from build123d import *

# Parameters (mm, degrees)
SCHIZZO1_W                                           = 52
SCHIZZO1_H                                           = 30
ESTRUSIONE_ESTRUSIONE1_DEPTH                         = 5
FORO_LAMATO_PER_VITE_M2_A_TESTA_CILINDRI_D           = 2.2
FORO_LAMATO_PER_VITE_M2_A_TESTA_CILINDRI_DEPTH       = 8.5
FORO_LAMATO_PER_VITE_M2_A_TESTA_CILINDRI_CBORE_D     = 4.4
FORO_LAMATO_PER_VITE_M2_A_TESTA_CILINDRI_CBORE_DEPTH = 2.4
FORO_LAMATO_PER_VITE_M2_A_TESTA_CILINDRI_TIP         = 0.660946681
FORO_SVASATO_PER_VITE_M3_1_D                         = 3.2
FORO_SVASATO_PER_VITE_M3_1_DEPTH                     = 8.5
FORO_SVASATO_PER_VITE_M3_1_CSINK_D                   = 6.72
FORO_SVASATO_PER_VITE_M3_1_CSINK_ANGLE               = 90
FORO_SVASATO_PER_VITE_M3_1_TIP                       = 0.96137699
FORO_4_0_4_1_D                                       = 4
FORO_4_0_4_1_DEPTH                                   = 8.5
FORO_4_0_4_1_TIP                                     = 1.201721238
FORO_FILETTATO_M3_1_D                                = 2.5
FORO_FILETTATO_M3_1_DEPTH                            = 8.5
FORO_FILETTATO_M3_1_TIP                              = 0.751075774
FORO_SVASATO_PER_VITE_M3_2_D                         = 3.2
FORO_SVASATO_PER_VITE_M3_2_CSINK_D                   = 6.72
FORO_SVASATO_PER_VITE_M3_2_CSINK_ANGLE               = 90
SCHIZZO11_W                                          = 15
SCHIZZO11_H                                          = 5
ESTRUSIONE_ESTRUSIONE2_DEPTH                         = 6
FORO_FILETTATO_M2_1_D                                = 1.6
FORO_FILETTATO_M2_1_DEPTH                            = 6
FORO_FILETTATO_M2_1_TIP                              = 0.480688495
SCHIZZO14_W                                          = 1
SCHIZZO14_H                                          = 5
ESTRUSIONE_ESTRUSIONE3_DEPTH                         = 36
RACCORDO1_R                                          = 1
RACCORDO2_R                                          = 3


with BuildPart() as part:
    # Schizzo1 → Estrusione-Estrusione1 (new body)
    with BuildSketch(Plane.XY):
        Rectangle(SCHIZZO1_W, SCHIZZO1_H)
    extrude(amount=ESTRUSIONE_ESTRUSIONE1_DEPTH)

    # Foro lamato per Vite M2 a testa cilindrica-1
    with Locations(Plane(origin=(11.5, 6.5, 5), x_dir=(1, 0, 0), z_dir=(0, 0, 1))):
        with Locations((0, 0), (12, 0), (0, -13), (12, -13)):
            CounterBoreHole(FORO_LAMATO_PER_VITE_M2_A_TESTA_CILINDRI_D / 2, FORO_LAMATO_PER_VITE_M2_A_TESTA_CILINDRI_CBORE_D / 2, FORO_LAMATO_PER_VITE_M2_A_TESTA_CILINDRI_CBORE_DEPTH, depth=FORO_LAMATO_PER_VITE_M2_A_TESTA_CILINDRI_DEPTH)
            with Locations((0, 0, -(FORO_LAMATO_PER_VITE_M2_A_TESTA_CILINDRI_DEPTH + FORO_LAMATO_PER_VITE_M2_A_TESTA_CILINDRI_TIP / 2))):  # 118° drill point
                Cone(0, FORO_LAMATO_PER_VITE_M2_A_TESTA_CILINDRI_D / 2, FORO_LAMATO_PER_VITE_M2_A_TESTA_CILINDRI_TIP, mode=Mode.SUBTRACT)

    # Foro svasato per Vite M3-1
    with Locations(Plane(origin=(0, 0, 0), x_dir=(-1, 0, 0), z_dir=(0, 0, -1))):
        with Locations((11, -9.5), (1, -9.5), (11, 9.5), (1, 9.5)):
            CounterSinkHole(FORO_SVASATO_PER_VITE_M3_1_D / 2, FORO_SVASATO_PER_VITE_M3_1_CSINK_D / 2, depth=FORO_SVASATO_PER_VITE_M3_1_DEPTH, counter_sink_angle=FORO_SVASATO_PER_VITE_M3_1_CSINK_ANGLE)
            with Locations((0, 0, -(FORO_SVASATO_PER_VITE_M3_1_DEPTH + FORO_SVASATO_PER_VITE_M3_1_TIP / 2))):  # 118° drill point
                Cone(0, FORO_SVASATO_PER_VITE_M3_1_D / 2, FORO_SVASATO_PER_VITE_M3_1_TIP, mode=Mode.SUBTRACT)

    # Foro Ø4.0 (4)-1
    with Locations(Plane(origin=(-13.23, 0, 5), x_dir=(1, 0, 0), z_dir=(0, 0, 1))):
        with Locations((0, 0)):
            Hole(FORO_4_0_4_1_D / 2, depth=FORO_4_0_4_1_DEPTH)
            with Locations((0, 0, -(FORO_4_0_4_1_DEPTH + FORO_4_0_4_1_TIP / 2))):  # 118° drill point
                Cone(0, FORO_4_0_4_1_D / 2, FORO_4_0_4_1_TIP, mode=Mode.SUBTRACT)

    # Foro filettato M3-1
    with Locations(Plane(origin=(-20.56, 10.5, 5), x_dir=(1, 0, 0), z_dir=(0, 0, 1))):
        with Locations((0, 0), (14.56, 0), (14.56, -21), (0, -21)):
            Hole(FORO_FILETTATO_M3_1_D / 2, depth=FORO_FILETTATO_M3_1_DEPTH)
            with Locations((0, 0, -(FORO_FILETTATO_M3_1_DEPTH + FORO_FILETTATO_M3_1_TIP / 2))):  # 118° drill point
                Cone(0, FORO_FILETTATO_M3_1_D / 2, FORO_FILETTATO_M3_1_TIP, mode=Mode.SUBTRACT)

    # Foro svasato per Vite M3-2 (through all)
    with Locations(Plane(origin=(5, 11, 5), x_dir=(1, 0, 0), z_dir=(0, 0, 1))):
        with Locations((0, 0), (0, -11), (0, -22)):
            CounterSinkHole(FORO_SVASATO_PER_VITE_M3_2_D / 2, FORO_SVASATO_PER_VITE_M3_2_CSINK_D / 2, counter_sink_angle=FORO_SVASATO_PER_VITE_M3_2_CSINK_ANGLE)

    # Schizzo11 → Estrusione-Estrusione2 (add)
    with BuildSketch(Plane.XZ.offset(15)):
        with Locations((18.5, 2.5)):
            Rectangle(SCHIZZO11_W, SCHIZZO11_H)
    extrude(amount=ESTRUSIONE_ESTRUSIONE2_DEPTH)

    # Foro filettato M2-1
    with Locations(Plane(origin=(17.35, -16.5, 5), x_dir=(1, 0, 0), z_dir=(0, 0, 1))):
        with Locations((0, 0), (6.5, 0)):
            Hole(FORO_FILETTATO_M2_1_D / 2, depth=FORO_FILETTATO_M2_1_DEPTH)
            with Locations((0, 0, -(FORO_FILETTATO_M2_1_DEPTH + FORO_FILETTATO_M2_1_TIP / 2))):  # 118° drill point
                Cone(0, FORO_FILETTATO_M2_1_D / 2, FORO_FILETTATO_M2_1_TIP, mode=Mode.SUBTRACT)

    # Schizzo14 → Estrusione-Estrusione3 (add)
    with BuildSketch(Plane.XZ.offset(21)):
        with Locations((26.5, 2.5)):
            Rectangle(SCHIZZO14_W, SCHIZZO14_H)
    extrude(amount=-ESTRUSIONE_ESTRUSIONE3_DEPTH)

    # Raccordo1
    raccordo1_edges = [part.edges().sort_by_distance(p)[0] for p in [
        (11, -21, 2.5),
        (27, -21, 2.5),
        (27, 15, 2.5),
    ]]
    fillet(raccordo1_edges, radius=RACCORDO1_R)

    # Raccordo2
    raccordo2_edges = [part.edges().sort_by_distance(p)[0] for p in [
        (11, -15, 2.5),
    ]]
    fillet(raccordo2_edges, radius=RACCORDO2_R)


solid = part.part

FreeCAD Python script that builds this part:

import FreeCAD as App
import Part
import Sketcher


def edges_at(feature, points):
    """Names of the edges that pass closest to the given points."""
    edges = feature.Shape.Edges
    near = lambda p: min(range(len(edges)), key=lambda i: edges[i].distToShape(Part.Vertex(*p))[0])
    return sorted({f"Edge{near(p) + 1}" for p in points})

doc = App.newDocument("Part")
body = doc.addObject("PartDesign::Body", "Body")

sketch1 = doc.addObject("Sketcher::SketchObject", "Sketch")
body.addObject(sketch1)
sketch1.AttachmentSupport = (doc.XY_Plane, [""])
sketch1.MapMode = "FlatFace"
sketch1.addGeometry([
    Part.LineSegment(App.Vector(-26, 15, 0), App.Vector(-26, -15, 0)),
    Part.LineSegment(App.Vector(-26, -15, 0), App.Vector(26, -15, 0)),
    Part.LineSegment(App.Vector(26, -15, 0), App.Vector(26, 15, 0)),
    Part.LineSegment(App.Vector(26, 15, 0), App.Vector(-26, 15, 0)),
], False)
sketch1.addConstraint([
    Sketcher.Constraint("Coincident", 0, 2, 1, 1),
    Sketcher.Constraint("Coincident", 1, 2, 2, 1),
    Sketcher.Constraint("Coincident", 2, 2, 3, 1),
    Sketcher.Constraint("Coincident", 3, 2, 0, 1),
    Sketcher.Constraint("Vertical", 0),
    Sketcher.Constraint("Horizontal", 1),
    Sketcher.Constraint("Vertical", 2),
    Sketcher.Constraint("Horizontal", 3),
    Sketcher.Constraint("Symmetric", 0, 2, 2, 2, -1, 1),
    Sketcher.Constraint("DistanceX", 1, 1, 1, 2, 52.0),
    Sketcher.Constraint("DistanceY", 0, 2, 0, 1, 30.0),
])
pad1 = doc.addObject("PartDesign::Pad", "Pad")
body.addObject(pad1)
pad1.Profile = sketch1
pad1.Length = 5

sketch2 = doc.addObject("Sketcher::SketchObject", "Sketch001")
body.addObject(sketch2)
sketch2.AttachmentSupport = (doc.XY_Plane, [""])
sketch2.MapMode = "FlatFace"
sketch2.AttachmentOffset = App.Placement(App.Vector(0, 0, 5), App.Rotation())
sketch2.addGeometry([
    Part.Circle(App.Vector(11.5, 6.5, 0), App.Vector(0, 0, 1), 1.1),
    Part.Circle(App.Vector(23.5, 6.5, 0), App.Vector(0, 0, 1), 1.1),
    Part.Circle(App.Vector(11.5, -6.5, 0), App.Vector(0, 0, 1), 1.1),
    Part.Circle(App.Vector(23.5, -6.5, 0), App.Vector(0, 0, 1), 1.1),
], False)
sketch2.addConstraint([
    Sketcher.Constraint("Equal", 0, 1),
    Sketcher.Constraint("Equal", 1, 2),
    Sketcher.Constraint("Equal", 2, 3),
    Sketcher.Constraint("Symmetric", 0, 3, 2, 3, -1),
    Sketcher.Constraint("Symmetric", 1, 3, 3, 3, -1),
    Sketcher.Constraint("Horizontal", 0, 3, 1, 3),
    Sketcher.Constraint("Diameter", 0, 2.2),
    Sketcher.Constraint("DistanceX", 0, 3, 1, 3, 12.0),
    Sketcher.Constraint("DistanceY", 2, 3, 0, 3, 13.0),
    Sketcher.Constraint("DistanceX", -1, 1, 0, 3, 11.5),
])
doc.recompute()
hole = doc.addObject("PartDesign::Hole", "Hole")
body.addObject(hole)
hole.Profile = sketch2
hole.ThreadType = "None"
hole.Diameter = 2.2
hole.DepthType = "Dimension"
hole.Depth = 8.5
hole.DrillPoint = "Angled"
hole.DrillPointAngle = 118
hole.HoleCutType = "Counterbore"
hole.HoleCutDiameter = 4.4
hole.HoleCutDepth = 2.4

sketch3 = doc.addObject("Sketcher::SketchObject", "Sketch002")
body.addObject(sketch3)
sketch3.AttachmentSupport = (doc.XY_Plane, [""])
sketch3.MapMode = "FlatFace"
sketch3.addGeometry([
    Part.Circle(App.Vector(-11, -9.5, 0), App.Vector(0, 0, 1), 1.6),
    Part.Circle(App.Vector(-1, -9.5, 0), App.Vector(0, 0, 1), 1.6),
    Part.Circle(App.Vector(-11, 9.5, 0), App.Vector(0, 0, 1), 1.6),
    Part.Circle(App.Vector(-1, 9.5, 0), App.Vector(0, 0, 1), 1.6),
], False)
sketch3.addConstraint([
    Sketcher.Constraint("Equal", 0, 1),
    Sketcher.Constraint("Equal", 1, 2),
    Sketcher.Constraint("Equal", 2, 3),
    Sketcher.Constraint("Symmetric", 0, 3, 2, 3, -1),
    Sketcher.Constraint("Symmetric", 1, 3, 3, 3, -1),
    Sketcher.Constraint("Horizontal", 0, 3, 1, 3),
    Sketcher.Constraint("Diameter", 0, 3.2),
    Sketcher.Constraint("DistanceX", 0, 3, -1, 1, 11.0),
    Sketcher.Constraint("DistanceX", 1, 3, -1, 1, 1.0),
    Sketcher.Constraint("DistanceY", 0, 3, 2, 3, 19.0),
])
doc.recompute()
hole2 = doc.addObject("PartDesign::Hole", "Hole001")
body.addObject(hole2)
hole2.Profile = sketch3
hole2.ThreadType = "None"
hole2.Diameter = 3.2
hole2.DepthType = "Dimension"
hole2.Depth = 8.5
hole2.DrillPoint = "Angled"
hole2.DrillPointAngle = 118
hole2.HoleCutType = "Countersink"
hole2.HoleCutDiameter = 6.72
hole2.HoleCutCountersinkAngle = 90
hole2.Reversed = True

sketch4 = doc.addObject("Sketcher::SketchObject", "Sketch003")
body.addObject(sketch4)
sketch4.AttachmentSupport = (doc.XY_Plane, [""])
sketch4.MapMode = "FlatFace"
sketch4.AttachmentOffset = App.Placement(App.Vector(0, 0, 5), App.Rotation())
sketch4.addGeometry(Part.Circle(App.Vector(-13.23, 0, 0), App.Vector(0, 0, 1), 2), False)
sketch4.addConstraint([
    Sketcher.Constraint("PointOnObject", 0, 3, -1),
    Sketcher.Constraint("Diameter", 0, 4.0),
    Sketcher.Constraint("DistanceX", 0, 3, -1, 1, 13.23),
])
doc.recompute()
hole3 = doc.addObject("PartDesign::Hole", "Hole002")
body.addObject(hole3)
hole3.Profile = sketch4
hole3.ThreadType = "None"
hole3.Diameter = 4
hole3.DepthType = "Dimension"
hole3.Depth = 8.5
hole3.DrillPoint = "Angled"
hole3.DrillPointAngle = 118

sketch5 = doc.addObject("Sketcher::SketchObject", "Sketch004")
body.addObject(sketch5)
sketch5.AttachmentSupport = (doc.XY_Plane, [""])
sketch5.MapMode = "FlatFace"
sketch5.AttachmentOffset = App.Placement(App.Vector(0, 0, 5), App.Rotation())
sketch5.addGeometry([
    Part.Circle(App.Vector(-20.56, 10.5, 0), App.Vector(0, 0, 1), 1.25),
    Part.Circle(App.Vector(-6, 10.5, 0), App.Vector(0, 0, 1), 1.25),
    Part.Circle(App.Vector(-6, -10.5, 0), App.Vector(0, 0, 1), 1.25),
    Part.Circle(App.Vector(-20.56, -10.5, 0), App.Vector(0, 0, 1), 1.25),
], False)
sketch5.addConstraint([
    Sketcher.Constraint("Equal", 0, 1),
    Sketcher.Constraint("Equal", 1, 2),
    Sketcher.Constraint("Equal", 2, 3),
    Sketcher.Constraint("Symmetric", 1, 3, 2, 3, -1),
    Sketcher.Constraint("Symmetric", 0, 3, 3, 3, -1),
    Sketcher.Constraint("Horizontal", 0, 3, 1, 3),
    Sketcher.Constraint("Diameter", 0, 2.5),
    Sketcher.Constraint("DistanceX", 1, 3, -1, 1, 6.0),
    Sketcher.Constraint("DistanceY", 2, 3, 1, 3, 21.0),
    Sketcher.Constraint("DistanceX", 0, 3, -1, 1, 20.56),
])
doc.recompute()
hole4 = doc.addObject("PartDesign::Hole", "Hole003")
body.addObject(hole4)
hole4.Profile = sketch5
hole4.ThreadType = "None"
hole4.Diameter = 2.5
hole4.DepthType = "Dimension"
hole4.Depth = 8.5
hole4.DrillPoint = "Angled"
hole4.DrillPointAngle = 118

sketch6 = doc.addObject("Sketcher::SketchObject", "Sketch005")
body.addObject(sketch6)
sketch6.AttachmentSupport = (doc.XY_Plane, [""])
sketch6.MapMode = "FlatFace"
sketch6.AttachmentOffset = App.Placement(App.Vector(0, 0, 5), App.Rotation())
sketch6.addGeometry([
    Part.Circle(App.Vector(5, 11, 0), App.Vector(0, 0, 1), 1.6),
    Part.Circle(App.Vector(5, 0, 0), App.Vector(0, 0, 1), 1.6),
    Part.Circle(App.Vector(5, -11, 0), App.Vector(0, 0, 1), 1.6),
], False)
sketch6.addConstraint([
    Sketcher.Constraint("Equal", 0, 1),
    Sketcher.Constraint("Equal", 1, 2),
    Sketcher.Constraint("Symmetric", 0, 3, 2, 3, -1),
    Sketcher.Constraint("PointOnObject", 1, 3, -1),
    Sketcher.Constraint("Vertical", 0, 3, 1, 3),
    Sketcher.Constraint("Diameter", 0, 3.2),
    Sketcher.Constraint("DistanceX", -1, 1, 0, 3, 5.0),
    Sketcher.Constraint("DistanceY", -1, 1, 0, 3, 11.0),
])
doc.recompute()
hole5 = doc.addObject("PartDesign::Hole", "Hole004")
body.addObject(hole5)
hole5.Profile = sketch6
hole5.ThreadType = "None"
hole5.Diameter = 3.2
hole5.DepthType = "ThroughAll"
hole5.HoleCutType = "Countersink"
hole5.HoleCutDiameter = 6.72
hole5.HoleCutCountersinkAngle = 90

sketch7 = doc.addObject("Sketcher::SketchObject", "Sketch006")
body.addObject(sketch7)
sketch7.AttachmentSupport = (doc.XZ_Plane, [""])
sketch7.MapMode = "FlatFace"
sketch7.AttachmentOffset = App.Placement(App.Vector(0, 0, 15), App.Rotation())
sketch7.addGeometry([
    Part.LineSegment(App.Vector(11, 5, 0), App.Vector(11, 0, 0)),
    Part.LineSegment(App.Vector(11, 0, 0), App.Vector(26, 0, 0)),
    Part.LineSegment(App.Vector(26, 0, 0), App.Vector(26, 5, 0)),
    Part.LineSegment(App.Vector(26, 5, 0), App.Vector(11, 5, 0)),
], False)
sketch7.addConstraint([
    Sketcher.Constraint("Coincident", 0, 2, 1, 1),
    Sketcher.Constraint("Coincident", 1, 2, 2, 1),
    Sketcher.Constraint("Coincident", 2, 2, 3, 1),
    Sketcher.Constraint("Coincident", 3, 2, 0, 1),
    Sketcher.Constraint("Vertical", 0),
    Sketcher.Constraint("Horizontal", 1),
    Sketcher.Constraint("Vertical", 2),
    Sketcher.Constraint("Horizontal", 3),
    Sketcher.Constraint("PointOnObject", 0, 2, -1),
    Sketcher.Constraint("DistanceX", 1, 1, 1, 2, 15.0),
    Sketcher.Constraint("DistanceY", 0, 2, 0, 1, 5.0),
    Sketcher.Constraint("DistanceX", -1, 1, 0, 2, 11.0),
])
pad2 = doc.addObject("PartDesign::Pad", "Pad001")
body.addObject(pad2)
pad2.Profile = sketch7
pad2.Length = 6

sketch8 = doc.addObject("Sketcher::SketchObject", "Sketch007")
body.addObject(sketch8)
sketch8.AttachmentSupport = (doc.XY_Plane, [""])
sketch8.MapMode = "FlatFace"
sketch8.AttachmentOffset = App.Placement(App.Vector(0, 0, 5), App.Rotation())
sketch8.addGeometry([
    Part.Circle(App.Vector(17.35, -16.5, 0), App.Vector(0, 0, 1), 0.8),
    Part.Circle(App.Vector(23.85, -16.5, 0), App.Vector(0, 0, 1), 0.8),
], False)
sketch8.addConstraint([
    Sketcher.Constraint("Equal", 0, 1),
    Sketcher.Constraint("Horizontal", 0, 3, 1, 3),
    Sketcher.Constraint("Diameter", 0, 1.6),
    Sketcher.Constraint("DistanceY", 0, 3, -1, 1, 16.5),
    Sketcher.Constraint("DistanceX", 0, 3, 1, 3, 6.5),
    Sketcher.Constraint("DistanceX", -1, 1, 0, 3, 17.35),
])
doc.recompute()
hole6 = doc.addObject("PartDesign::Hole", "Hole005")
body.addObject(hole6)
hole6.Profile = sketch8
hole6.ThreadType = "None"
hole6.Diameter = 1.6
hole6.DepthType = "Dimension"
hole6.Depth = 6
hole6.DrillPoint = "Angled"
hole6.DrillPointAngle = 118

sketch9 = doc.addObject("Sketcher::SketchObject", "Sketch008")
body.addObject(sketch9)
sketch9.AttachmentSupport = (doc.XZ_Plane, [""])
sketch9.MapMode = "FlatFace"
sketch9.AttachmentOffset = App.Placement(App.Vector(0, 0, 21), App.Rotation())
sketch9.addGeometry([
    Part.LineSegment(App.Vector(26, 5, 0), App.Vector(26, 0, 0)),
    Part.LineSegment(App.Vector(26, 0, 0), App.Vector(27, 0, 0)),
    Part.LineSegment(App.Vector(27, 0, 0), App.Vector(27, 5, 0)),
    Part.LineSegment(App.Vector(27, 5, 0), App.Vector(26, 5, 0)),
], False)
sketch9.addConstraint([
    Sketcher.Constraint("Coincident", 0, 2, 1, 1),
    Sketcher.Constraint("Coincident", 1, 2, 2, 1),
    Sketcher.Constraint("Coincident", 2, 2, 3, 1),
    Sketcher.Constraint("Coincident", 3, 2, 0, 1),
    Sketcher.Constraint("Vertical", 0),
    Sketcher.Constraint("Horizontal", 1),
    Sketcher.Constraint("Vertical", 2),
    Sketcher.Constraint("Horizontal", 3),
    Sketcher.Constraint("PointOnObject", 0, 2, -1),
    Sketcher.Constraint("DistanceX", 1, 1, 1, 2, 1.0),
    Sketcher.Constraint("DistanceY", 0, 2, 0, 1, 5.0),
    Sketcher.Constraint("DistanceX", -1, 1, 0, 2, 26.0),
])
pad3 = doc.addObject("PartDesign::Pad", "Pad002")
body.addObject(pad3)
pad3.Profile = sketch9
pad3.Length = 36
pad3.Reversed = True
doc.recompute()

fillet = doc.addObject("PartDesign::Fillet", "Fillet")
body.addObject(fillet)
fillet.Base = (pad3, edges_at(pad3, [(11, -21, 2.5), (27, -21, 2.5), (27, 15, 2.5)]))
fillet.Radius = 1
doc.recompute()

fillet2 = doc.addObject("PartDesign::Fillet", "Fillet001")
body.addObject(fillet2)
fillet2.Base = (fillet, edges_at(fillet, [(11, -15, 2.5)]))
fillet2.Radius = 3

doc.recompute()
